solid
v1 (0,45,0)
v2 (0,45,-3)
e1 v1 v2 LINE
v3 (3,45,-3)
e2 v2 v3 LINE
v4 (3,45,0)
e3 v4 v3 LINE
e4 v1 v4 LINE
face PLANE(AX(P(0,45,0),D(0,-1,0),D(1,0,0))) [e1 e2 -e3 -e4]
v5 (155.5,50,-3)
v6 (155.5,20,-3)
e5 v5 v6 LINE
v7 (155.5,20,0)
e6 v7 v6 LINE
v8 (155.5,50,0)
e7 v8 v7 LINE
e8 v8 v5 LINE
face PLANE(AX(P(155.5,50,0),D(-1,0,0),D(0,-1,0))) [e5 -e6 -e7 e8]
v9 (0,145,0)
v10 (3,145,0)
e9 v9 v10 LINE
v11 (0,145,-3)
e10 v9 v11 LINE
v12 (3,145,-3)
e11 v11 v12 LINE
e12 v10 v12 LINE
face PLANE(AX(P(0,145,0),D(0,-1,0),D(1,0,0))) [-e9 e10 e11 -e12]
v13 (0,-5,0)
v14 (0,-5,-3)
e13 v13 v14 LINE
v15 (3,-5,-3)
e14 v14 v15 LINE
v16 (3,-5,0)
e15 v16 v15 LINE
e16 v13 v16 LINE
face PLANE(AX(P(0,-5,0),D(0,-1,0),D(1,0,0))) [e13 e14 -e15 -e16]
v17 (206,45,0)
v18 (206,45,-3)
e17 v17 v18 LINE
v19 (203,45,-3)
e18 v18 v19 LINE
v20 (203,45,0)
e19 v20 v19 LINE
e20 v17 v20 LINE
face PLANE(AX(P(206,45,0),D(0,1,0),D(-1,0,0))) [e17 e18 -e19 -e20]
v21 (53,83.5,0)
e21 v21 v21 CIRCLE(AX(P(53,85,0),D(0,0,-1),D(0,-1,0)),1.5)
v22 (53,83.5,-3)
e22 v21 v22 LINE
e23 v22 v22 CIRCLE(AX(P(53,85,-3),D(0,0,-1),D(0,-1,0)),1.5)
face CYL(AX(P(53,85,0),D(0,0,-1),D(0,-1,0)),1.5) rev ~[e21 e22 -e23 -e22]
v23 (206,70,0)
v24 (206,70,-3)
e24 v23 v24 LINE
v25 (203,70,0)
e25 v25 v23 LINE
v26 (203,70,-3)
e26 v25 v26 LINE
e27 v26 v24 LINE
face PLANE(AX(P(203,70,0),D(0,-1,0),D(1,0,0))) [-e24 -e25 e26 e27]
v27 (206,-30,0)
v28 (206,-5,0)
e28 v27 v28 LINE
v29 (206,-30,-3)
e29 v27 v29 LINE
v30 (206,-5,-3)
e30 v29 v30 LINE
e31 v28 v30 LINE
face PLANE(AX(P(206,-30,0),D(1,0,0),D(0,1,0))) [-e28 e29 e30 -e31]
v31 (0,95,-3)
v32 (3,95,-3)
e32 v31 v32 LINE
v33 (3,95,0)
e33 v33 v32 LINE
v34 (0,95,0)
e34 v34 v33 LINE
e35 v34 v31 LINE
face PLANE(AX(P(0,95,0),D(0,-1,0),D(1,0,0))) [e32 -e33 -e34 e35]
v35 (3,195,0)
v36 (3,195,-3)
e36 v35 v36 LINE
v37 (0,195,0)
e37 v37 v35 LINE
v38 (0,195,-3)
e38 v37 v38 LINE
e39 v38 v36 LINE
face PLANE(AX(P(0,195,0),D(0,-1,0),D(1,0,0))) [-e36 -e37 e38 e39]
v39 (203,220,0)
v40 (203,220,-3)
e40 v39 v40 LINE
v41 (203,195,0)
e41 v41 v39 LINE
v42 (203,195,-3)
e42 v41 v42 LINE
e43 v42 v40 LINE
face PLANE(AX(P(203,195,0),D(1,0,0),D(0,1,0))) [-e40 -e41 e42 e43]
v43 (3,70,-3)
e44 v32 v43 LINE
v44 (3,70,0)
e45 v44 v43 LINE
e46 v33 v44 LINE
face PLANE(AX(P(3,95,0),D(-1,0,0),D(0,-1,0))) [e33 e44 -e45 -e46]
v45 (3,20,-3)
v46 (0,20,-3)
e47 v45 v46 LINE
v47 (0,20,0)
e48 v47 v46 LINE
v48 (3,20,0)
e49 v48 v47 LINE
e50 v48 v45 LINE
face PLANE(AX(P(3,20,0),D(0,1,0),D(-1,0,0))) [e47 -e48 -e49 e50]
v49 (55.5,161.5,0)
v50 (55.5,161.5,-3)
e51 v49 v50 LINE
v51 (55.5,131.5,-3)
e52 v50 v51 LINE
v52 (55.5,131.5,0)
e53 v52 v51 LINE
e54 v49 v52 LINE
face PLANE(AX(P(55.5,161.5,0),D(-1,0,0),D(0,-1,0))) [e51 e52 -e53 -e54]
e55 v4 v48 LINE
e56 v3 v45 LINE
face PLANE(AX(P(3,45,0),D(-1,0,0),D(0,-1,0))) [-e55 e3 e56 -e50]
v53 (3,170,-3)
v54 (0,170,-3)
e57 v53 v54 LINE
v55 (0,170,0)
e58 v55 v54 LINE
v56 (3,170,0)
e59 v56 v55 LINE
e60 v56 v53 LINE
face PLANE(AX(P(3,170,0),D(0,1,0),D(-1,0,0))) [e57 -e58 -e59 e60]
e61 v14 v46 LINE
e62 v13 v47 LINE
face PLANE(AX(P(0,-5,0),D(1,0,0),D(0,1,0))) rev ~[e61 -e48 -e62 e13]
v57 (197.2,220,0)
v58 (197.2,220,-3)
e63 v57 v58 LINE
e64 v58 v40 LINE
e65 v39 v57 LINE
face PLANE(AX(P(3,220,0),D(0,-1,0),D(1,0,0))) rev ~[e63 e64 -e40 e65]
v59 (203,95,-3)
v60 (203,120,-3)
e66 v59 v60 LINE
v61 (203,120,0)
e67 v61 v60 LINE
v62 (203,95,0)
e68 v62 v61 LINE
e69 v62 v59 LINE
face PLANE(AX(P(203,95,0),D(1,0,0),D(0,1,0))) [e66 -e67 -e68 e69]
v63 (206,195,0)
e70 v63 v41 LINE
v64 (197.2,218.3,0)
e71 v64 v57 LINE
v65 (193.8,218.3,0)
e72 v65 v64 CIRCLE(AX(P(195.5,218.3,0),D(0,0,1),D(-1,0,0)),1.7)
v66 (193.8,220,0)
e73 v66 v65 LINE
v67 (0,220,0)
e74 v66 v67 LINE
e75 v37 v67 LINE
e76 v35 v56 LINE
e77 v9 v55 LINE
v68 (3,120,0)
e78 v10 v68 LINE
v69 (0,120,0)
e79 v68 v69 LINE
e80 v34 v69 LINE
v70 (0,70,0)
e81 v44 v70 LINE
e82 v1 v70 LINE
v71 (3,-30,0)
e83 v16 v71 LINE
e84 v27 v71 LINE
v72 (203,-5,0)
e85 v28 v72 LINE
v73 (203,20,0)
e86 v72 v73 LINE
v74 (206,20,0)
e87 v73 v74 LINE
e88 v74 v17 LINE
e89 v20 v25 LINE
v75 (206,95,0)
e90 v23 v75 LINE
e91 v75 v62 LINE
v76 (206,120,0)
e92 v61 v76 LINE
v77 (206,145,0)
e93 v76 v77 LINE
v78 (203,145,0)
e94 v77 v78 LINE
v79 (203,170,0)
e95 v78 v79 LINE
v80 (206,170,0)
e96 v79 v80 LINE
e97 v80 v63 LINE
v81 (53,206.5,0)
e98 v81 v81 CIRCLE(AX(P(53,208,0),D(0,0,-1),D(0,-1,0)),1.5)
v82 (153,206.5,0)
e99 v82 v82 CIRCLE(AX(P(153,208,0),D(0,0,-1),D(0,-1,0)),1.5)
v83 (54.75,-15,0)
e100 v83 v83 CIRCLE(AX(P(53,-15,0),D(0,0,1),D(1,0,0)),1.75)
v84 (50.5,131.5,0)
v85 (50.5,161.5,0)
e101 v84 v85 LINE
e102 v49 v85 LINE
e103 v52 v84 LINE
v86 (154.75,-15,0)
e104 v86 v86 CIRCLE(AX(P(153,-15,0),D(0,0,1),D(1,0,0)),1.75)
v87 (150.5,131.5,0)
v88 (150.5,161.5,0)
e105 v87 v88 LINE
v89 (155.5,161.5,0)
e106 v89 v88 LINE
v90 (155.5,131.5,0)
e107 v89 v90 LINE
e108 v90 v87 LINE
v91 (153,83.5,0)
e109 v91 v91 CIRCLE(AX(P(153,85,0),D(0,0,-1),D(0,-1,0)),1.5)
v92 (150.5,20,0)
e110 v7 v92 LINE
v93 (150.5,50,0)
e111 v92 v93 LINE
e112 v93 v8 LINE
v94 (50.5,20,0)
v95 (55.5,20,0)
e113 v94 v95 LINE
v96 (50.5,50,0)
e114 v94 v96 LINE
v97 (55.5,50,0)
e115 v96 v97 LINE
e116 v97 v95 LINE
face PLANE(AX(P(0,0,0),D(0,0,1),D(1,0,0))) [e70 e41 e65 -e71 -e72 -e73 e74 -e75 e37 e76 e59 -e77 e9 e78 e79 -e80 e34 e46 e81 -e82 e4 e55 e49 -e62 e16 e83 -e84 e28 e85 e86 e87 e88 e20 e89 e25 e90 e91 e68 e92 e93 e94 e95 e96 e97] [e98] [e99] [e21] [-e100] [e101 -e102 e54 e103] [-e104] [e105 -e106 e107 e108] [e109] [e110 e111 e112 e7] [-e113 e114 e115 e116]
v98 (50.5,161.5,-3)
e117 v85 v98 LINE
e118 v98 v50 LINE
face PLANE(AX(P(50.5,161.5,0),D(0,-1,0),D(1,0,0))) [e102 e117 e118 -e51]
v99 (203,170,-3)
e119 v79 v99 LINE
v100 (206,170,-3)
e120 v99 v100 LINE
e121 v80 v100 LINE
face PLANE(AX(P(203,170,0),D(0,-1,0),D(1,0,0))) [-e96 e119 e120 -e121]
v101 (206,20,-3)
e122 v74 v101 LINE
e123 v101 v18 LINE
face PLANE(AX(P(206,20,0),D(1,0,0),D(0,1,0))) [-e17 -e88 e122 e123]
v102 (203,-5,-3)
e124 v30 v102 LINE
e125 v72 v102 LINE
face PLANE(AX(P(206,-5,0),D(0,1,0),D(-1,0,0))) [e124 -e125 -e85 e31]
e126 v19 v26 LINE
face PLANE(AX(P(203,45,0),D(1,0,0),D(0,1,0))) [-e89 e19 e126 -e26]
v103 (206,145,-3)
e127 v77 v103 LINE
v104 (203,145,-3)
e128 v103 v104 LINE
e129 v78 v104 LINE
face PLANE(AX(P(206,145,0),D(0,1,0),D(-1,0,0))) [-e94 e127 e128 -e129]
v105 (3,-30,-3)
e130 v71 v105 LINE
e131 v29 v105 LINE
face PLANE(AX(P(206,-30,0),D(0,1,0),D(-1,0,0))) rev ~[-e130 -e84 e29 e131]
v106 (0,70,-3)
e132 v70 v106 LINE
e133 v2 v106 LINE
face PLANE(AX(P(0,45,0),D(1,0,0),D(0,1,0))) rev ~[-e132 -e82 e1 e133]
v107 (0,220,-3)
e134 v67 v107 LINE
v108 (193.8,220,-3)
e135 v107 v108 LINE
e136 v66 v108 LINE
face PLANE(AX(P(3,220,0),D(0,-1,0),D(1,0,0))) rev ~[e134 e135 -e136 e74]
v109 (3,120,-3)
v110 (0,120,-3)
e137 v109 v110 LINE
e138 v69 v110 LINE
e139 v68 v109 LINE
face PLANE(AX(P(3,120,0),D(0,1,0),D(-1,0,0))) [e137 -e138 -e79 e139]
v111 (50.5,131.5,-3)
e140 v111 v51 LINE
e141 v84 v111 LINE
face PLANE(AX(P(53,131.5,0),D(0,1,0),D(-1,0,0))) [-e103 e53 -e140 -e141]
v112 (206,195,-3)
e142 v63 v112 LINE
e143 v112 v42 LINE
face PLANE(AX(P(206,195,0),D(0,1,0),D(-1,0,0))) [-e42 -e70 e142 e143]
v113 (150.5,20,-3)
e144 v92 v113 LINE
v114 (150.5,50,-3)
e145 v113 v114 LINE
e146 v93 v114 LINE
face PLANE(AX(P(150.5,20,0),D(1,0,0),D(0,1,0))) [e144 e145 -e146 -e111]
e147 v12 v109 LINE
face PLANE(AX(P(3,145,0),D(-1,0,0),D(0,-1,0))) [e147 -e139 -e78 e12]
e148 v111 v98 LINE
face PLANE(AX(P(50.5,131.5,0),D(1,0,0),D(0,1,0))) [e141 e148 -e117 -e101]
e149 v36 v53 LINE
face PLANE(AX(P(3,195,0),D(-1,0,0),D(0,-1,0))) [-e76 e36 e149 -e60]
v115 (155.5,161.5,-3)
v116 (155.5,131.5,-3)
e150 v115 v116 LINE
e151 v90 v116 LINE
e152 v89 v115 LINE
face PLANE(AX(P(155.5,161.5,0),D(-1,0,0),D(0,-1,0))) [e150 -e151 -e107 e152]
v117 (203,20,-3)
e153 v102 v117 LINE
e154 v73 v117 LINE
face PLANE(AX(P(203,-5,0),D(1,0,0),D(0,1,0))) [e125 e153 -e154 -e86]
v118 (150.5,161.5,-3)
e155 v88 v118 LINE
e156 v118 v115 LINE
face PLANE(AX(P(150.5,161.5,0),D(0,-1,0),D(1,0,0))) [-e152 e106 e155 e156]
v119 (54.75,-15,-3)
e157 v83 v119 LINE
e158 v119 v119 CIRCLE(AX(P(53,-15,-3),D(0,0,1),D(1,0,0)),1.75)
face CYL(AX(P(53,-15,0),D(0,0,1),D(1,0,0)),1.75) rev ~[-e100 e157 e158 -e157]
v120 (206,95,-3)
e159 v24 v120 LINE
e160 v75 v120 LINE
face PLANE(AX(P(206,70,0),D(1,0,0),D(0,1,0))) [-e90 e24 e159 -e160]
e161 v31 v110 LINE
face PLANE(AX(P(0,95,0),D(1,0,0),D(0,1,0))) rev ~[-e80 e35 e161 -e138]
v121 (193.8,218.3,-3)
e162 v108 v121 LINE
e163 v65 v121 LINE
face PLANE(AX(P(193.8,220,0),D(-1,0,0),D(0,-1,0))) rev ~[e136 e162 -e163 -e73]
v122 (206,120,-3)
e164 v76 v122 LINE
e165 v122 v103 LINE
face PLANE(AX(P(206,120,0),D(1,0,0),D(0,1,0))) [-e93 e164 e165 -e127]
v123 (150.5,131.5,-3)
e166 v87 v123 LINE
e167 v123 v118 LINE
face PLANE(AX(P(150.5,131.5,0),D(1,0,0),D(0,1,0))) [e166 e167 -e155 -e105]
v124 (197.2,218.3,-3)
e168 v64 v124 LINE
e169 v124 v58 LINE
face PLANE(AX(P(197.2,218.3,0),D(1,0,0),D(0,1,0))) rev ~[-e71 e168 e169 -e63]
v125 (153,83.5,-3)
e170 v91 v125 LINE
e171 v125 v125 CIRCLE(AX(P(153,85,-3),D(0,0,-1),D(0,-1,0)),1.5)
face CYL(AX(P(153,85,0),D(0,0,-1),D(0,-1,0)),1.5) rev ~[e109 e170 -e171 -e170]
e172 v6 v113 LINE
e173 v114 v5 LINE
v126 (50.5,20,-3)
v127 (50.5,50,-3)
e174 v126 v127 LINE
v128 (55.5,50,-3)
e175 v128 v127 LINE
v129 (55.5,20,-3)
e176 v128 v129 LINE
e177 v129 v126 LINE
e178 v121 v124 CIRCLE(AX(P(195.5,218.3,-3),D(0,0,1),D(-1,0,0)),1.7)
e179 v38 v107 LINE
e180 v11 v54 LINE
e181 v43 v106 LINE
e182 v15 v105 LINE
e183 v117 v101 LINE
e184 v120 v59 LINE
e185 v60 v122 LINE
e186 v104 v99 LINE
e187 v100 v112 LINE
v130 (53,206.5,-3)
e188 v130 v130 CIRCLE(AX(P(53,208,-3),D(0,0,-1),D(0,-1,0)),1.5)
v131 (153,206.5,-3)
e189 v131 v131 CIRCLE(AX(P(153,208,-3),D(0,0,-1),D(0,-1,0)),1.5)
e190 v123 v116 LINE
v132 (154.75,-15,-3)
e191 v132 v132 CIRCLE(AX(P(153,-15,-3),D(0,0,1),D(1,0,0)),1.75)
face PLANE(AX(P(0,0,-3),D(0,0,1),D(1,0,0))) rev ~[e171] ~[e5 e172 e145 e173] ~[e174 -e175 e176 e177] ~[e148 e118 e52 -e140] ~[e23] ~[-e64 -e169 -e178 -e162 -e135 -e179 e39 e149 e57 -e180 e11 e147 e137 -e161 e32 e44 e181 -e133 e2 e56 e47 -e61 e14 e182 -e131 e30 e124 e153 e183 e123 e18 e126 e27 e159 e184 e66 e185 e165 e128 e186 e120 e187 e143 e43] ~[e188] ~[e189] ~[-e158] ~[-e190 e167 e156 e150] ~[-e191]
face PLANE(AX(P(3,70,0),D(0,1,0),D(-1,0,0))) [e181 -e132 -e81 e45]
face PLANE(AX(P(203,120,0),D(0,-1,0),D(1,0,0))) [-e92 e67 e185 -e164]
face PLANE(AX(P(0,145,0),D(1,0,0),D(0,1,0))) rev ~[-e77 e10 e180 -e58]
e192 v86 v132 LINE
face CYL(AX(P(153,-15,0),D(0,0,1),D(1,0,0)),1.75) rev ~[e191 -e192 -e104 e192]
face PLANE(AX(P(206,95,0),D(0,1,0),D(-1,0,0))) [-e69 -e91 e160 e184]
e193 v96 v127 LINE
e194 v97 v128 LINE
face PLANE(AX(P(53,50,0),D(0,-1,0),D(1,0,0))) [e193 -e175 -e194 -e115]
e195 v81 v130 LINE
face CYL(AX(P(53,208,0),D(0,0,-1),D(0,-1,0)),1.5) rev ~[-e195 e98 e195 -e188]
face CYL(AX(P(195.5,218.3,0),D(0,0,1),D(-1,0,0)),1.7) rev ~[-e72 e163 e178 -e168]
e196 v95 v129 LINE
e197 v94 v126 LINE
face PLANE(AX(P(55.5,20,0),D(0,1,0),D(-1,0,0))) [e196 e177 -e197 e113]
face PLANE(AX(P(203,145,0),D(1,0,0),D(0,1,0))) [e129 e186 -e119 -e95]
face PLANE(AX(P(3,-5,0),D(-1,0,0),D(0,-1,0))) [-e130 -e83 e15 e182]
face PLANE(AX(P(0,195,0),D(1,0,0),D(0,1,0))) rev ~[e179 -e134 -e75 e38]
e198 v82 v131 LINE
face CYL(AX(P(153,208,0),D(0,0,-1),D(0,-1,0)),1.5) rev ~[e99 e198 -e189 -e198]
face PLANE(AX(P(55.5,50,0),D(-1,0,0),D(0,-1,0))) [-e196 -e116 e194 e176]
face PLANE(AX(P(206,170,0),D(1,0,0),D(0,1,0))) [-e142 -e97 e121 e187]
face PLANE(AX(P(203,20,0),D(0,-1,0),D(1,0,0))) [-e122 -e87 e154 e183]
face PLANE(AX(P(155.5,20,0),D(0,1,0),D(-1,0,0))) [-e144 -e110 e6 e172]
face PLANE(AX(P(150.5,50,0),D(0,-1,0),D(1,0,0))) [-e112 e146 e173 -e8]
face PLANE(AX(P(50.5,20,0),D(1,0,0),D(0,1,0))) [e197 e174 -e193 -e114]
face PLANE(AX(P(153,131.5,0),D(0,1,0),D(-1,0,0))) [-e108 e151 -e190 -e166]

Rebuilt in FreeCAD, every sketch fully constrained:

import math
import FreeCAD as App
import Part
import Sketcher
from FreeCAD import Vector
Q = App.Units.Quantity

doc = App.newDocument("Part")
body = doc.addObject("PartDesign::Body", "Body")

# Sketch on XY plane
sketch1 = doc.addObject("Sketcher::SketchObject", "Sketch")
body.addObject(sketch1)
sketch1.AttachmentSupport = (doc.XY_Plane, [""])
sketch1.MapMode = "FlatFace"
sketch1.addGeometry([
    Part.LineSegment(Vector(3, -30, 0), Vector(206, -30, 0)),  # 0
    Part.LineSegment(Vector(206, -30, 0), Vector(206, -5, 0)),  # 1
    Part.LineSegment(Vector(206, -5, 0), Vector(203, -5, 0)),  # 2
    Part.LineSegment(Vector(203, -5, 0), Vector(203, 20, 0)),  # 3
    Part.LineSegment(Vector(203, 20, 0), Vector(206, 20, 0)),  # 4
    Part.LineSegment(Vector(206, 20, 0), Vector(206, 45, 0)),  # 5
    Part.LineSegment(Vector(206, 45, 0), Vector(203, 45, 0)),  # 6
    Part.LineSegment(Vector(203, 45, 0), Vector(203, 70, 0)),  # 7
    Part.LineSegment(Vector(203, 70, 0), Vector(206, 70, 0)),  # 8
    Part.LineSegment(Vector(206, 70, 0), Vector(206, 95, 0)),  # 9
    Part.LineSegment(Vector(206, 95, 0), Vector(203, 95, 0)),  # 10
    Part.LineSegment(Vector(203, 95, 0), Vector(203, 120, 0)),  # 11
    Part.LineSegment(Vector(203, 120, 0), Vector(206, 120, 0)),  # 12
    Part.LineSegment(Vector(206, 120, 0), Vector(206, 145, 0)),  # 13
    Part.LineSegment(Vector(206, 145, 0), Vector(203, 145, 0)),  # 14
    Part.LineSegment(Vector(203, 145, 0), Vector(203, 170, 0)),  # 15
    Part.LineSegment(Vector(203, 170, 0), Vector(206, 170, 0)),  # 16
    Part.LineSegment(Vector(206, 170, 0), Vector(206, 195, 0)),  # 17
    Part.LineSegment(Vector(206, 195, 0), Vector(203, 195, 0)),  # 18
    Part.LineSegment(Vector(203, 195, 0), Vector(203, 220, 0)),  # 19
    Part.LineSegment(Vector(203, 220, 0), Vector(0, 220, 0)),  # 20
    Part.LineSegment(Vector(0, 220, 0), Vector(0, 195, 0)),  # 21
    Part.LineSegment(Vector(0, 195, 0), Vector(3, 195, 0)),  # 22
    Part.LineSegment(Vector(3, 195, 0), Vector(3, 170, 0)),  # 23
    Part.LineSegment(Vector(3, 170, 0), Vector(0, 170, 0)),  # 24
    Part.LineSegment(Vector(0, 170, 0), Vector(0, 145, 0)),  # 25
    Part.LineSegment(Vector(0, 145, 0), Vector(3, 145, 0)),  # 26
    Part.LineSegment(Vector(3, 145, 0), Vector(3, 120, 0)),  # 27
    Part.LineSegment(Vector(3, 120, 0), Vector(0, 120, 0)),  # 28
    Part.LineSegment(Vector(0, 120, 0), Vector(0, 95, 0)),  # 29
    Part.LineSegment(Vector(0, 95, 0), Vector(3, 95, 0)),  # 30
    Part.LineSegment(Vector(3, 95, 0), Vector(3, 70, 0)),  # 31
    Part.LineSegment(Vector(3, 70, 0), Vector(0, 70, 0)),  # 32
    Part.LineSegment(Vector(0, 70, 0), Vector(0, 45, 0)),  # 33
    Part.LineSegment(Vector(0, 45, 0), Vector(3, 45, 0)),  # 34
    Part.LineSegment(Vector(3, 45, 0), Vector(3, 20, 0)),  # 35
    Part.LineSegment(Vector(3, 20, 0), Vector(0, 20, 0)),  # 36
    Part.LineSegment(Vector(0, 20, 0), Vector(0, -5, 0)),  # 37
    Part.LineSegment(Vector(0, -5, 0), Vector(3, -5, 0)),  # 38
    Part.LineSegment(Vector(3, -5, 0), Vector(3, -30, 0)),  # 39
], False)
sketch1.addConstraint([
    Sketcher.Constraint("Coincident", 0, 2, 1, 1),
    Sketcher.Constraint("Coincident", 1, 2, 2, 1),
    Sketcher.Constraint("Coincident", 2, 2, 3, 1),
    Sketcher.Constraint("Coincident", 3, 2, 4, 1),
    Sketcher.Constraint("Coincident", 4, 2, 5, 1),
    Sketcher.Constraint("Coincident", 5, 2, 6, 1),
    Sketcher.Constraint("Coincident", 6, 2, 7, 1),
    Sketcher.Constraint("Coincident", 7, 2, 8, 1),
    Sketcher.Constraint("Coincident", 8, 2, 9, 1),
    Sketcher.Constraint("Coincident", 9, 2, 10, 1),
    Sketcher.Constraint("Coincident", 10, 2, 11, 1),
    Sketcher.Constraint("Coincident", 11, 2, 12, 1),
    Sketcher.Constraint("Coincident", 12, 2, 13, 1),
    Sketcher.Constraint("Coincident", 13, 2, 14, 1),
    Sketcher.Constraint("Coincident", 14, 2, 15, 1),
    Sketcher.Constraint("Coincident", 15, 2, 16, 1),
    Sketcher.Constraint("Coincident", 16, 2, 17, 1),
    Sketcher.Constraint("Coincident", 17, 2, 18, 1),
    Sketcher.Constraint("Coincident", 18, 2, 19, 1),
    Sketcher.Constraint("Coincident", 19, 2, 20, 1),
    Sketcher.Constraint("Coincident", 20, 2, 21, 1),
    Sketcher.Constraint("Coincident", 21, 2, 22, 1),
    Sketcher.Constraint("Coincident", 22, 2, 23, 1),
    Sketcher.Constraint("Coincident", 23, 2, 24, 1),
    Sketcher.Constraint("Coincident", 24, 2, 25, 1),
    Sketcher.Constraint("Coincident", 25, 2, 26, 1),
    Sketcher.Constraint("Coincident", 26, 2, 27, 1),
    Sketcher.Constraint("Coincident", 27, 2, 28, 1),
    Sketcher.Constraint("Coincident", 28, 2, 29, 1),
    Sketcher.Constraint("Coincident", 29, 2, 30, 1),
    Sketcher.Constraint("Coincident", 30, 2, 31, 1),
    Sketcher.Constraint("Coincident", 31, 2, 32, 1),
    Sketcher.Constraint("Coincident", 32, 2, 33, 1),
    Sketcher.Constraint("Coincident", 33, 2, 34, 1),
    Sketcher.Constraint("Coincident", 34, 2, 35, 1),
    Sketcher.Constraint("Coincident", 35, 2, 36, 1),
    Sketcher.Constraint("Coincident", 36, 2, 37, 1),
    Sketcher.Constraint("Coincident", 37, 2, 38, 1),
    Sketcher.Constraint("Coincident", 38, 2, 39, 1),
    Sketcher.Constraint("Coincident", 39, 2, 0, 1),
    Sketcher.Constraint("Horizontal", 0),
    Sketcher.Constraint("Vertical", 1),
    Sketcher.Constraint("Horizontal", 2),
    Sketcher.Constraint("Vertical", 3),
    Sketcher.Constraint("Horizontal", 4),
    Sketcher.Constraint("Vertical", 5),
    Sketcher.Constraint("Horizontal", 6),
    Sketcher.Constraint("Vertical", 7),
    Sketcher.Constraint("Horizontal", 8),
    Sketcher.Constraint("Vertical", 9),
    Sketcher.Constraint("Horizontal", 10),
    Sketcher.Constraint("Vertical", 11),
    Sketcher.Constraint("Horizontal", 12),
    Sketcher.Constraint("Vertical", 13),
    Sketcher.Constraint("Horizontal", 14),
    Sketcher.Constraint("Vertical", 15),
    Sketcher.Constraint("Horizontal", 16),
    Sketcher.Constraint("Vertical", 17),
    Sketcher.Constraint("Horizontal", 18),
    Sketcher.Constraint("Vertical", 19),
    Sketcher.Constraint("Horizontal", 20),
    Sketcher.Constraint("Vertical", 21),
    Sketcher.Constraint("Horizontal", 22),
    Sketcher.Constraint("Vertical", 23),
    Sketcher.Constraint("Horizontal", 24),
    Sketcher.Constraint("Vertical", 25),
    Sketcher.Constraint("Horizontal", 26),
    Sketcher.Constraint("Vertical", 27),
    Sketcher.Constraint("Horizontal", 28),
    Sketcher.Constraint("Vertical", 29),
    Sketcher.Constraint("Horizontal", 30),
    Sketcher.Constraint("Vertical", 31),
    Sketcher.Constraint("Horizontal", 32),
    Sketcher.Constraint("Vertical", 33),
    Sketcher.Constraint("Horizontal", 34),
    Sketcher.Constraint("Vertical", 35),
    Sketcher.Constraint("Horizontal", 36),
    Sketcher.Constraint("Vertical", 37),
    Sketcher.Constraint("Horizontal", 38),
    Sketcher.Constraint("Vertical", 39),
    Sketcher.Constraint("PointOnObject", 20, 2, -2),
    Sketcher.Constraint("PointOnObject", 24, 2, -2),
    Sketcher.Constraint("PointOnObject", 28, 2, -2),
    Sketcher.Constraint("PointOnObject", 32, 2, -2),
    Sketcher.Constraint("PointOnObject", 36, 2, -2),
    Sketcher.Constraint("Horizontal", 18, 2, 21, 2),
    Sketcher.Constraint("Horizontal", 16, 2, 23, 2),
    Sketcher.Constraint("Horizontal", 14, 2, 25, 2),
    Sketcher.Constraint("Horizontal", 12, 2, 27, 2),
    Sketcher.Constraint("Horizontal", 10, 2, 29, 2),
    Sketcher.Constraint("Horizontal", 8, 2, 31, 2),
    Sketcher.Constraint("Horizontal", 6, 2, 33, 2),
    Sketcher.Constraint("Horizontal", 4, 2, 35, 2),
    Sketcher.Constraint("Horizontal", 2, 2, 37, 2),
    Sketcher.Constraint("Vertical", 1, 2, 4, 2),
    Sketcher.Constraint("Vertical", 3, 2, 6, 2),
    Sketcher.Constraint("Vertical", 5, 2, 8, 2),
    Sketcher.Constraint("Vertical", 7, 2, 10, 2),
    Sketcher.Constraint("Vertical", 9, 2, 12, 2),
    Sketcher.Constraint("Vertical", 11, 2, 14, 2),
    Sketcher.Constraint("Vertical", 13, 2, 16, 2),
    Sketcher.Constraint("Vertical", 15, 2, 18, 2),
    Sketcher.Constraint("Vertical", 23, 2, 26, 2),
    Sketcher.Constraint("Vertical", 27, 2, 30, 2),
    Sketcher.Constraint("Vertical", 31, 2, 34, 2),
    Sketcher.Constraint("Vertical", 35, 2, 38, 2),
    Sketcher.Constraint("Equal", 0, 20),
    Sketcher.Constraint("Equal", 1, 3),
    Sketcher.Constraint("Equal", 3, 5),
    Sketcher.Constraint("Equal", 5, 7),
    Sketcher.Constraint("Equal", 7, 9),
    Sketcher.Constraint("Equal", 9, 11),
    Sketcher.Constraint("Equal", 11, 13),
    Sketcher.Constraint("Equal", 13, 15),
    Sketcher.Constraint("Equal", 15, 17),
    Sketcher.Constraint("Equal", 17, 19),
    Sketcher.Constraint("DistanceX", 2, 2, 2, 1, Q("3 mm")),
    Sketcher.Constraint("DistanceY", 1, 1, 1, 2, Q("25 mm")),
    Sketcher.Constraint("DistanceX", 0, 1, 0, 2, Q("203 mm")),
    Sketcher.Constraint("DistanceY", 0, 2, -1, 1, Q("30 mm")),
])
pad1 = doc.addObject("PartDesign::Pad", "Pad")
body.addObject(pad1)
pad1.Profile = sketch1
pad1.Length = 3
pad1.Reversed = True

# Sketch on XY plane
sketch2 = doc.addObject("Sketcher::SketchObject", "Sketch001")
body.addObject(sketch2)
sketch2.AttachmentSupport = (doc.XY_Plane, [""])
sketch2.MapMode = "FlatFace"
sketch2.addGeometry([
    Part.Circle(Vector(53, -15, 0), Vector(0, 0, 1), 1.8),
    Part.Circle(Vector(153, -15, 0), Vector(0, 0, 1), 1.8),
], False)
sketch2.addConstraint([
    Sketcher.Constraint("Equal", 0, 1),
    Sketcher.Constraint("Horizontal", 0, 3, 1, 3),
    Sketcher.Constraint("Diameter", 0, Q("3.5 mm")),
    Sketcher.Constraint("DistanceX", -1, 1, 0, 3, Q("53 mm")),
    Sketcher.Constraint("DistanceY", 0, 3, -1, 1, Q("15 mm")),
    Sketcher.Constraint("DistanceX", -1, 1, 1, 3, Q("153 mm")),
])
pocket1 = doc.addObject("PartDesign::Pocket", "Pocket")
body.addObject(pocket1)
pocket1.Profile = sketch2
pocket1.Length = 3

# Sketch on XY plane
sketch3 = doc.addObject("Sketcher::SketchObject", "Sketch002")
body.addObject(sketch3)
sketch3.AttachmentSupport = (doc.XY_Plane, [""])
sketch3.MapMode = "FlatFace"
sketch3.addGeometry([
    Part.Circle(Vector(53, 208, 0), Vector(0, 0, 1), 1.5),
    Part.Circle(Vector(153, 208, 0), Vector(0, 0, 1), 1.5),
], False)
sketch3.addConstraint([
    Sketcher.Constraint("Equal", 0, 1),
    Sketcher.Constraint("Horizontal", 0, 3, 1, 3),
    Sketcher.Constraint("Diameter", 0, Q("3 mm")),
    Sketcher.Constraint("DistanceX", -1, 1, 0, 3, Q("53 mm")),
    Sketcher.Constraint("DistanceY", -1, 1, 0, 3, Q("208 mm")),
    Sketcher.Constraint("DistanceX", -1, 1, 1, 3, Q("153 mm")),
])
doc.recompute()
hole = doc.addObject("PartDesign::Hole", "Hole")
body.addObject(hole)
hole.Profile = sketch3
hole.ThreadType = "None"
hole.Diameter = 3
hole.DepthType = "Dimension"
hole.Depth = 4
hole.DrillPoint = "Flat"

# Sketch on XY plane
sketch4 = doc.addObject("Sketcher::SketchObject", "Sketch003")
body.addObject(sketch4)
sketch4.AttachmentSupport = (doc.XY_Plane, [""])
sketch4.MapMode = "FlatFace"
sketch4.addGeometry([
    Part.Circle(Vector(153, 85, 0), Vector(0, 0, 1), 1.5),
    Part.Circle(Vector(53, 85, 0), Vector(0, 0, 1), 1.5),
], False)
sketch4.addConstraint([
    Sketcher.Constraint("Equal", 0, 1),
    Sketcher.Constraint("Horizontal", 0, 3, 1, 3),
    Sketcher.Constraint("Diameter", 0, Q("3 mm")),
    Sketcher.Constraint("DistanceX", -1, 1, 0, 3, Q("153 mm")),
    Sketcher.Constraint("DistanceY", -1, 1, 0, 3, Q("85 mm")),
    Sketcher.Constraint("DistanceX", -1, 1, 1, 3, Q("53 mm")),
])
doc.recompute()
hole2 = doc.addObject("PartDesign::Hole", "Hole001")
body.addObject(hole2)
hole2.Profile = sketch4
hole2.ThreadType = "None"
hole2.Diameter = 3
hole2.DepthType = "Dimension"
hole2.Depth = 4
hole2.DrillPoint = "Flat"

# Sketch on XY plane
sketch5 = doc.addObject("Sketcher::SketchObject", "Sketch004")
body.addObject(sketch5)
sketch5.AttachmentSupport = (doc.XY_Plane, [""])
sketch5.MapMode = "FlatFace"
sketch5.addGeometry([
    Part.LineSegment(Vector(56, 50, 0), Vector(50, 50, 0)),  # 0
    Part.LineSegment(Vector(50, 50, 0), Vector(50, 20, 0)),  # 1
    Part.LineSegment(Vector(50, 20, 0), Vector(56, 20, 0)),  # 2
    Part.LineSegment(Vector(56, 20, 0), Vector(56, 50, 0)),  # 3
    Part.LineSegment(Vector(50, 132, 0), Vector(56, 132, 0)),  # 4
    Part.LineSegment(Vector(56, 132, 0), Vector(56, 162, 0)),  # 5
    Part.LineSegment(Vector(56, 162, 0), Vector(50, 162, 0)),  # 6
    Part.LineSegment(Vector(50, 162, 0), Vector(50, 132, 0)),  # 7
    Part.LineSegment(Vector(150, 132, 0), Vector(156, 132, 0)),  # 8
    Part.LineSegment(Vector(156, 132, 0), Vector(156, 162, 0)),  # 9
    Part.LineSegment(Vector(156, 162, 0), Vector(150, 162, 0)),  # 10
    Part.LineSegment(Vector(150, 162, 0), Vector(150, 132, 0)),  # 11
    Part.LineSegment(Vector(156, 50, 0), Vector(150, 50, 0)),  # 12
    Part.LineSegment(Vector(150, 50, 0), Vector(150, 20, 0)),  # 13
    Part.LineSegment(Vector(150, 20, 0), Vector(156, 20, 0)),  # 14
    Part.LineSegment(Vector(156, 20, 0), Vector(156, 50, 0)),  # 15
], False)
sketch5.addConstraint([
    Sketcher.Constraint("Coincident", 0, 2, 1, 1),
    Sketcher.Constraint("Coincident", 1, 2, 2, 1),
    Sketcher.Constraint("Coincident", 2, 2, 3, 1),
    Sketcher.Constraint("Coincident", 3, 2, 0, 1),
    Sketcher.Constraint("Coincident", 4, 2, 5, 1),
    Sketcher.Constraint("Coincident", 5, 2, 6, 1),
    Sketcher.Constraint("Coincident", 6, 2, 7, 1),
    Sketcher.Constraint("Coincident", 7, 2, 4, 1),
    Sketcher.Constraint("Coincident", 8, 2, 9, 1),
    Sketcher.Constraint("Coincident", 9, 2, 10, 1),
    Sketcher.Constraint("Coincident", 10, 2, 11, 1),
    Sketcher.Constraint("Coincident", 11, 2, 8, 1),
    Sketcher.Constraint("Coincident", 12, 2, 13, 1),
    Sketcher.Constraint("Coincident", 13, 2, 14, 1),
    Sketcher.Constraint("Coincident", 14, 2, 15, 1),
    Sketcher.Constraint("Coincident", 15, 2, 12, 1),
    Sketcher.Constraint("Horizontal", 0),
    Sketcher.Constraint("Vertical", 1),
    Sketcher.Constraint("Horizontal", 2),
    Sketcher.Constraint("Vertical", 3),
    Sketcher.Constraint("Horizontal", 4),
    Sketcher.Constraint("Vertical", 5),
    Sketcher.Constraint("Horizontal", 6),
    Sketcher.Constraint("Vertical", 7),
    Sketcher.Constraint("Horizontal", 8),
    Sketcher.Constraint("Vertical", 9),
    Sketcher.Constraint("Horizontal", 10),
    Sketcher.Constraint("Vertical", 11),
    Sketcher.Constraint("Horizontal", 12),
    Sketcher.Constraint("Vertical", 13),
    Sketcher.Constraint("Horizontal", 14),
    Sketcher.Constraint("Vertical", 15),
    Sketcher.Constraint("Horizontal", 7, 2, 8, 2),
    Sketcher.Constraint("Horizontal", 6, 2, 9, 2),
    Sketcher.Constraint("Horizontal", 3, 2, 12, 2),
    Sketcher.Constraint("Horizontal", 2, 2, 13, 2),
    Sketcher.Constraint("Vertical", 3, 2, 4, 2),
    Sketcher.Constraint("Vertical", 1, 2, 6, 2),
    Sketcher.Constraint("Vertical", 11, 2, 12, 2),
    Sketcher.Constraint("Vertical", 9, 2, 14, 2),
    Sketcher.Constraint("Equal", 6, 8),
    Sketcher.Constraint("Equal", 3, 5),
    Sketcher.Constraint("DistanceX", 0, 2, 0, 1, Q("5 mm")),
    Sketcher.Constraint("DistanceY", 1, 2, 1, 1, Q("30 mm")),
    Sketcher.Constraint("DistanceY", -1, 1, 0, 2, Q("50 mm")),
    Sketcher.Constraint("DistanceX", 4, 2, 8, 2, Q("100 mm")),
    Sketcher.Constraint("DistanceX", -1, 1, 0, 2, Q("50.5 mm")),
    Sketcher.Constraint("DistanceY", -1, 1, 4, 2, Q("131.5 mm")),
])
pocket2 = doc.addObject("PartDesign::Pocket", "Pocket001")
body.addObject(pocket2)
pocket2.Profile = sketch5
pocket2.Length = 3

# Sketch on XY plane
sketch6 = doc.addObject("Sketcher::SketchObject", "Sketch005")
body.addObject(sketch6)
sketch6.AttachmentSupport = (doc.XY_Plane, [""])
sketch6.MapMode = "FlatFace"
sketch6.addGeometry([
    Part.ArcOfCircle(Part.Circle(Vector(195.5, 218.3, 0), Vector(0, 0, 1), 1.7), math.radians(180), math.radians(360)),
    Part.LineSegment(Vector(197.2, 218.3, 0), Vector(197.2, 220, 0)),
    Part.LineSegment(Vector(197.2, 220, 0), Vector(193.8, 220, 0)),
    Part.LineSegment(Vector(193.8, 220, 0), Vector(193.8, 218.3, 0)),
], False)
sketch6.addConstraint([
    Sketcher.Constraint("Tangent", 0, 2, 1, 1),
    Sketcher.Constraint("Coincident", 1, 2, 2, 1),
    Sketcher.Constraint("Coincident", 2, 2, 3, 1),
    Sketcher.Constraint("Tangent", 3, 2, 0, 1),
    Sketcher.Constraint("Vertical", 1),
    Sketcher.Constraint("Horizontal", 2),
    Sketcher.Constraint("Vertical", 3),
    Sketcher.Constraint("Radius", 0, Q("1.7 mm")),
    Sketcher.Constraint("DistanceY", 1, 1, 1, 2, Q("1.7 mm")),
    Sketcher.Constraint("DistanceY", -1, 1, 1, 2, Q("220 mm")),
    Sketcher.Constraint("DistanceX", -1, 1, 0, 3, Q("195.5 mm")),
])
pocket3 = doc.addObject("PartDesign::Pocket", "Pocket002")
body.addObject(pocket3)
pocket3.Profile = sketch6
pocket3.Length = 10

doc.recompute()
